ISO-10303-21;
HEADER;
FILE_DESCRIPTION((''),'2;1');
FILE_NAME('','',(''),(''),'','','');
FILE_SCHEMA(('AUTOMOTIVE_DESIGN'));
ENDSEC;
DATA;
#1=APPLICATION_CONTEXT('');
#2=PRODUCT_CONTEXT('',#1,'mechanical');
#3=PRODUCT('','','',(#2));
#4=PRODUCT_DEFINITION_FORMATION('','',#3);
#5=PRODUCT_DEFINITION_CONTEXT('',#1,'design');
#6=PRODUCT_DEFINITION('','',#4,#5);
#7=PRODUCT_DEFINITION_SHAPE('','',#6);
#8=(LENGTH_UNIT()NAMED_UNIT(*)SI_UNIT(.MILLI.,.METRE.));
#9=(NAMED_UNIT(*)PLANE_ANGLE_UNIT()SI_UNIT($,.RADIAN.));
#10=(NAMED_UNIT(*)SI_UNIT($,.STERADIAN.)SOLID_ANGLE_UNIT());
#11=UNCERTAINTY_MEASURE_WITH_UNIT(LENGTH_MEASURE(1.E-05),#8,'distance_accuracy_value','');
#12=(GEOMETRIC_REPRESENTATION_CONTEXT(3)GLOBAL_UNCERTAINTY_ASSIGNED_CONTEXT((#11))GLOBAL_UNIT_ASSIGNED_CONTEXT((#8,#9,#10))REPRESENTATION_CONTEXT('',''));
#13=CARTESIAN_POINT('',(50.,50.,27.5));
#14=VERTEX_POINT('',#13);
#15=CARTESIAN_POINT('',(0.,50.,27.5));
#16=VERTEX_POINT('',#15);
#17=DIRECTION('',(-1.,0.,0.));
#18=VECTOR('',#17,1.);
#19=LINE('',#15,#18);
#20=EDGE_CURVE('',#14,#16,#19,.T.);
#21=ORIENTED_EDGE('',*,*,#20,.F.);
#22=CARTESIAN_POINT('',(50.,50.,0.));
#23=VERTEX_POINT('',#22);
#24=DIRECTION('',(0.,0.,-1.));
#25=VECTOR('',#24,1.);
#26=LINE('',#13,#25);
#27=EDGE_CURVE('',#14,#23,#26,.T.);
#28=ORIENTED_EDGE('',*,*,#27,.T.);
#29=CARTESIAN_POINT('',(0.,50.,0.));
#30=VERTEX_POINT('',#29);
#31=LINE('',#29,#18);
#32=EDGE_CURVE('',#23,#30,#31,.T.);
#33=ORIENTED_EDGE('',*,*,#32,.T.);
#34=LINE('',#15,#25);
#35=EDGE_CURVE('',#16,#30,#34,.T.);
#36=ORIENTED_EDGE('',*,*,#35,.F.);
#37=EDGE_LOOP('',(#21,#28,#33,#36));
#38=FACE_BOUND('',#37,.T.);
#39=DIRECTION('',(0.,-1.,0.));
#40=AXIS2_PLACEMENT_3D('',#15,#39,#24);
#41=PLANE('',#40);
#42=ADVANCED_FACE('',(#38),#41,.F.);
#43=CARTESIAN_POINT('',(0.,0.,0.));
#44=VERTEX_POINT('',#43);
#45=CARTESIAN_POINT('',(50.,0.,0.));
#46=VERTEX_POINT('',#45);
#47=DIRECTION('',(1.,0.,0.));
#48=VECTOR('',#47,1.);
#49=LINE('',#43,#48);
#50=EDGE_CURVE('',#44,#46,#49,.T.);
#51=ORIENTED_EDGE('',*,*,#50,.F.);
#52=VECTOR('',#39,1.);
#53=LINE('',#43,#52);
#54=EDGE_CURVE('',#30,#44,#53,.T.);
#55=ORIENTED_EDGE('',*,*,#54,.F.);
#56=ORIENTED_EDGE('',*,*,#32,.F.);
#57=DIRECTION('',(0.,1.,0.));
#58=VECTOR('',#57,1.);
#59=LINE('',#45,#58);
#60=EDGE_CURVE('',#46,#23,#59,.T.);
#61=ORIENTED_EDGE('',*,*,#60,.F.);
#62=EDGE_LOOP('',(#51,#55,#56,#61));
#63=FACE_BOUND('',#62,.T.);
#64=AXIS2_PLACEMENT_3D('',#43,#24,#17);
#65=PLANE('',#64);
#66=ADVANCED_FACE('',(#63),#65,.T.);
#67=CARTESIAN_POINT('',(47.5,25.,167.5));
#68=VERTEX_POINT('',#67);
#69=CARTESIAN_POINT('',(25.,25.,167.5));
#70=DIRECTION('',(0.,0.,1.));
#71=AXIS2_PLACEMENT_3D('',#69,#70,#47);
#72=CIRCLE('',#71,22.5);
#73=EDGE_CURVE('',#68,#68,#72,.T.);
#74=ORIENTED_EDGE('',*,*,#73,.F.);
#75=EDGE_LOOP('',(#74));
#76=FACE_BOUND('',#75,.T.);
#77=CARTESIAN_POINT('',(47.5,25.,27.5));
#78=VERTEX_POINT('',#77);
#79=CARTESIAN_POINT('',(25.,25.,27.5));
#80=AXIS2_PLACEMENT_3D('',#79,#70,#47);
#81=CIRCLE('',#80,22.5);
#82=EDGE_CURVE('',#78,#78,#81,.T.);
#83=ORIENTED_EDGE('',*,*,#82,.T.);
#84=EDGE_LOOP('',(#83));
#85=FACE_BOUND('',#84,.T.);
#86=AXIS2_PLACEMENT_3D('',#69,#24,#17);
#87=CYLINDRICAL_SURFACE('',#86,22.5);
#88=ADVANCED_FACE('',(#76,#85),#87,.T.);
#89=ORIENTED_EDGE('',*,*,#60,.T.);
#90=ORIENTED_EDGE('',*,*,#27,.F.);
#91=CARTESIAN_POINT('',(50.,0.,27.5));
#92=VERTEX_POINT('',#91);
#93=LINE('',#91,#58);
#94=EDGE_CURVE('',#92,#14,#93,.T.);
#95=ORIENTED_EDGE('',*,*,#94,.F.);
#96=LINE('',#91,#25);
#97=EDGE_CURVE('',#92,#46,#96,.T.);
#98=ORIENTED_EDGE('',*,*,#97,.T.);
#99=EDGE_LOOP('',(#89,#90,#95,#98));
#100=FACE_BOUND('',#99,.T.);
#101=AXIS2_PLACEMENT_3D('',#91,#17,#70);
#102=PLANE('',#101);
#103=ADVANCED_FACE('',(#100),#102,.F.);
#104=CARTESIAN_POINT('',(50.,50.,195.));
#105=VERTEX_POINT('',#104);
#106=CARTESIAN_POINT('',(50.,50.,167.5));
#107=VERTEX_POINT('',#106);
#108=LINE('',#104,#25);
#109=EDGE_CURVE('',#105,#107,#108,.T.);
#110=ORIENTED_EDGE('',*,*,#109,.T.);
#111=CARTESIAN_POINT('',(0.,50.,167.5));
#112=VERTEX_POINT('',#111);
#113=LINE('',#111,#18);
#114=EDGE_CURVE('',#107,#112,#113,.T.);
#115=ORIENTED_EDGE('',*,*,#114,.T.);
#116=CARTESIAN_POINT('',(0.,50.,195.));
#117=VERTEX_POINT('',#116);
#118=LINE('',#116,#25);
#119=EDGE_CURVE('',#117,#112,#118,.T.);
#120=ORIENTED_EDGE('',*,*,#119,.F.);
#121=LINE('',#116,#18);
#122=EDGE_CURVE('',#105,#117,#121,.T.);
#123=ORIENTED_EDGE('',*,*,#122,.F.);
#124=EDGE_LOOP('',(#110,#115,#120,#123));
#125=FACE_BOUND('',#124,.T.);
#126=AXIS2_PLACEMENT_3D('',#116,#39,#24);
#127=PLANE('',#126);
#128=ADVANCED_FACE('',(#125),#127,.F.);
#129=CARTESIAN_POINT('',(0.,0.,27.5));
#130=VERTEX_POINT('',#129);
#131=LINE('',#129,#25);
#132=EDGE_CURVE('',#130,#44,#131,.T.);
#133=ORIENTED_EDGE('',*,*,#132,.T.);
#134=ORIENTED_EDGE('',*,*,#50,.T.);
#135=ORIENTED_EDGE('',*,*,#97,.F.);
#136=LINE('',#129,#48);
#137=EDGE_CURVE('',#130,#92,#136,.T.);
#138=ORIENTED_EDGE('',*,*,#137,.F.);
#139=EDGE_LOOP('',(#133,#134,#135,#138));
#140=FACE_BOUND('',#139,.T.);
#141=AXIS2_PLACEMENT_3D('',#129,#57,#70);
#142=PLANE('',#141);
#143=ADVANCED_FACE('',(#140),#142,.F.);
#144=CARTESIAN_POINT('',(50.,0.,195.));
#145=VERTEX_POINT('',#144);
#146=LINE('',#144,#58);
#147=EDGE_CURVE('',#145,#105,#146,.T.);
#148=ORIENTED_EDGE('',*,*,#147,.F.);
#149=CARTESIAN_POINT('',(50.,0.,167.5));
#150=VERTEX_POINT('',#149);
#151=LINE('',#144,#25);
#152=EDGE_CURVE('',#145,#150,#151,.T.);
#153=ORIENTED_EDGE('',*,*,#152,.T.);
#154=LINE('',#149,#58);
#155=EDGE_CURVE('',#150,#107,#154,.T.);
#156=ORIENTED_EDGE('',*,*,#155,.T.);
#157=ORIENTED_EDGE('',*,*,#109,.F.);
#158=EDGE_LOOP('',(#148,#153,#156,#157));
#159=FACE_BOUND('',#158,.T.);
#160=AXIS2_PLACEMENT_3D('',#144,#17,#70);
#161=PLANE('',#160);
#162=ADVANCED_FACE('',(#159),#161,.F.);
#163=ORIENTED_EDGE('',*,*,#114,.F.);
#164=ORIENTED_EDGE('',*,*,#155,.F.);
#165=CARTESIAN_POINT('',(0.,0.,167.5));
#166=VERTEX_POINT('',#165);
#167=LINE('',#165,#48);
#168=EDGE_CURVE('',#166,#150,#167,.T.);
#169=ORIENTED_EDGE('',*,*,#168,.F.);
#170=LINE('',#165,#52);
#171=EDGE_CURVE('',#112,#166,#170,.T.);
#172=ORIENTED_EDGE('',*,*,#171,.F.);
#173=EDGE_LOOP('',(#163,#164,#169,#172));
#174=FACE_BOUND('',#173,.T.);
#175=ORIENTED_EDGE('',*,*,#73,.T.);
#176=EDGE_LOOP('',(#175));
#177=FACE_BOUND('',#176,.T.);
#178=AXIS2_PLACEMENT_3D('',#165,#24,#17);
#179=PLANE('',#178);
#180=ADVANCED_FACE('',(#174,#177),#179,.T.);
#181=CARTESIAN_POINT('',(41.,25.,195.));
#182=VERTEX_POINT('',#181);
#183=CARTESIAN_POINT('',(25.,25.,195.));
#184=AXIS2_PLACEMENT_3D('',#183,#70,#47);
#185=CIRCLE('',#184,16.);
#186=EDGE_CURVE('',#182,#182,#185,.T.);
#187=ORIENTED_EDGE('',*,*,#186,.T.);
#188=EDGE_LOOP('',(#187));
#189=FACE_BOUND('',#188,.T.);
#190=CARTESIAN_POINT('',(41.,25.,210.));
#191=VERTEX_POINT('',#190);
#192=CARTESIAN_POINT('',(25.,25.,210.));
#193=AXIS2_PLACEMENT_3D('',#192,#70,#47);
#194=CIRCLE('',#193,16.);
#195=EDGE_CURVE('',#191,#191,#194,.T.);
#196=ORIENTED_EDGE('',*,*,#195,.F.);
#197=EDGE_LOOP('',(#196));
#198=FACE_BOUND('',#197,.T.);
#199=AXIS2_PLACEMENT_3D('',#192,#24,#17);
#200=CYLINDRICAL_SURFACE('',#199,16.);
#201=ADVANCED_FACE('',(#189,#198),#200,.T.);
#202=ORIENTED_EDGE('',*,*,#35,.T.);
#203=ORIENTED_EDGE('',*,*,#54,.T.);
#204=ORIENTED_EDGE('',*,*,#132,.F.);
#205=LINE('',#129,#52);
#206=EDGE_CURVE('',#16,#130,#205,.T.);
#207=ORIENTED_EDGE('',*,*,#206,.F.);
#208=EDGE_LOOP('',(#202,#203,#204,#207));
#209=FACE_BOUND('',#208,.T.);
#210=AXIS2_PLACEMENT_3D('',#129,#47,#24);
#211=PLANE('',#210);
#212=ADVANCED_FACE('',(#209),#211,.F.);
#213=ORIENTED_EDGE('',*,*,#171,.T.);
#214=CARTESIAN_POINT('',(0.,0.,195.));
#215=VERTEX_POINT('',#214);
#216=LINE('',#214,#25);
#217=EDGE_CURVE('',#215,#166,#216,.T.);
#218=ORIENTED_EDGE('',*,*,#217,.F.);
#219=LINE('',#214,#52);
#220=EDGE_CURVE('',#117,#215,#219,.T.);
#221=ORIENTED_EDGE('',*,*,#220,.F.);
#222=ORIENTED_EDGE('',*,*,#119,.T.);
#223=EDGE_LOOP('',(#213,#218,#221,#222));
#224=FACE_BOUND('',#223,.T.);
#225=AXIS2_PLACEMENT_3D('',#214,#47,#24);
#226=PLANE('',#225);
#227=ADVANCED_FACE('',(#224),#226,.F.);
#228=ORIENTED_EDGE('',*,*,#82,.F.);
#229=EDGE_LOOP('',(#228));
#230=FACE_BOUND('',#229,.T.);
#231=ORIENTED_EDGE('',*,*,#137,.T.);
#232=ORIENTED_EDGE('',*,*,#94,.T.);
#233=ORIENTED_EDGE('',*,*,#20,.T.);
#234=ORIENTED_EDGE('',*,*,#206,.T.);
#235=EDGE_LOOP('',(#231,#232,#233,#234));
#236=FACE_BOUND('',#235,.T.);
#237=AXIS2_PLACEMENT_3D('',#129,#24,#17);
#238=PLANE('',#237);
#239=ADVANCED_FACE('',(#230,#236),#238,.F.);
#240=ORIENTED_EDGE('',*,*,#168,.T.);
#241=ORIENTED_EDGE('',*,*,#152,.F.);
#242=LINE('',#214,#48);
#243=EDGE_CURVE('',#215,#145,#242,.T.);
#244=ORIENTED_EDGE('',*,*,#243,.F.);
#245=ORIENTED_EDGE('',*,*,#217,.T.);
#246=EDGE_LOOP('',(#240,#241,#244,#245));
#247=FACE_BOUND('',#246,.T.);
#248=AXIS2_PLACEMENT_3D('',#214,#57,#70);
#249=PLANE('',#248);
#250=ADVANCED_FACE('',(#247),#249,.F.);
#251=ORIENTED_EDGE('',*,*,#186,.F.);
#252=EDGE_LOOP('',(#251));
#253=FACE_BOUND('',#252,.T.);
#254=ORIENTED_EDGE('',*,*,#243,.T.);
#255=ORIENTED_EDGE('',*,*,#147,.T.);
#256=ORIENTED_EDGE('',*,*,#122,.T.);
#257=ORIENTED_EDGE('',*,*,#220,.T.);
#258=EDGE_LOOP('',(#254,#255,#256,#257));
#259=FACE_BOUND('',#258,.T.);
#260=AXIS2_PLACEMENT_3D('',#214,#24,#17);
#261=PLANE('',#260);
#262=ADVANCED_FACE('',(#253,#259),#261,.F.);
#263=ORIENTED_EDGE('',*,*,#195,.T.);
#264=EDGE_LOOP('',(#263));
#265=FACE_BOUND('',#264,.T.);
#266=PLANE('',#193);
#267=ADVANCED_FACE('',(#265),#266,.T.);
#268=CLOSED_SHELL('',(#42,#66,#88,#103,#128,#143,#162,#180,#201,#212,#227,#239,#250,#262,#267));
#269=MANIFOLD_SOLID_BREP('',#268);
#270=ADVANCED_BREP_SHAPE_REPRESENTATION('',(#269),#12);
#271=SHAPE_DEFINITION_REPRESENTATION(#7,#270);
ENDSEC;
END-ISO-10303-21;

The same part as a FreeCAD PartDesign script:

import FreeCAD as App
import Part
import Sketcher

V = App.Vector

doc = App.newDocument("Part")
body = doc.addObject("PartDesign::Body", "Body")

sketch1 = body.newObject("Sketcher::SketchObject", "Sketch")
sketch1.AttachmentSupport = (doc.getObject("XY_Plane"), [""])
sketch1.MapMode = "FlatFace"
sketch1.addGeometry([
    Part.LineSegment(V(0, 50, 0), V(0, 0, 0)),
    Part.LineSegment(V(0, 0, 0), V(50, 0, 0)),
    Part.LineSegment(V(50, 0, 0), V(50, 50, 0)),
    Part.LineSegment(V(50, 50, 0), V(0, 50, 0)),
], False)
sketch1.addConstraint([
    Sketcher.Constraint("Coincident", 0, 2, 1, 1),
    Sketcher.Constraint("Coincident", 1, 2, 2, 1),
    Sketcher.Constraint("Coincident", 2, 2, 3, 1),
    Sketcher.Constraint("Coincident", 3, 2, 0, 1),
    Sketcher.Constraint("Vertical", 0),
    Sketcher.Constraint("Horizontal", 1),
    Sketcher.Constraint("Vertical", 2),
    Sketcher.Constraint("Horizontal", 3),
    Sketcher.Constraint("Coincident", 0, 2, -1, 1),
    Sketcher.Constraint("Equal", 3, 0),
    Sketcher.Constraint("DistanceX", 1, 1, 1, 2, 50.0),
])
pad1 = body.newObject("PartDesign::Pad", "Pad")
pad1.Profile = sketch1
pad1.Length = 27.5

sketch2 = body.newObject("Sketcher::SketchObject", "Sketch001")
sketch2.AttachmentSupport = (doc.getObject("XY_Plane"), [""])
sketch2.MapMode = "FlatFace"
sketch2.AttachmentOffset = App.Placement(V(0, 0, 27.5), App.Rotation())
sketch2.addGeometry(Part.Circle(V(25, 25, 0), V(0, 0, 1), 22), False)
sketch2.addConstraint([
    Sketcher.Constraint("Diameter", 0, 45.0),
    Sketcher.Constraint("DistanceX", -1, 1, 0, 3, 25.0),
    Sketcher.Constraint("DistanceY", -1, 1, 0, 3, 25.0),
])
pad2 = body.newObject("PartDesign::Pad", "Pad001")
pad2.Profile = sketch2
pad2.Length = 140

sketch3 = body.newObject("Sketcher::SketchObject", "Sketch002")
sketch3.AttachmentSupport = (doc.getObject("XY_Plane"), [""])
sketch3.MapMode = "FlatFace"
sketch3.AttachmentOffset = App.Placement(V(0, 0, 167.5), App.Rotation())
sketch3.addGeometry([
    Part.LineSegment(V(0, 50, 0), V(0, 0, 0)),
    Part.LineSegment(V(0, 0, 0), V(50, 0, 0)),
    Part.LineSegment(V(50, 0, 0), V(50, 50, 0)),
    Part.LineSegment(V(50, 50, 0), V(0, 50, 0)),
], False)
sketch3.addConstraint([
    Sketcher.Constraint("Coincident", 0, 2, 1, 1),
    Sketcher.Constraint("Coincident", 1, 2, 2, 1),
    Sketcher.Constraint("Coincident", 2, 2, 3, 1),
    Sketcher.Constraint("Coincident", 3, 2, 0, 1),
    Sketcher.Constraint("Vertical", 0),
    Sketcher.Constraint("Horizontal", 1),
    Sketcher.Constraint("Vertical", 2),
    Sketcher.Constraint("Horizontal", 3),
    Sketcher.Constraint("Coincident", 0, 2, -1, 1),
    Sketcher.Constraint("Equal", 3, 0),
    Sketcher.Constraint("DistanceX", 1, 1, 1, 2, 50.0),
])
pad3 = body.newObject("PartDesign::Pad", "Pad002")
pad3.Profile = sketch3
pad3.Length = 27.5

sketch4 = body.newObject("Sketcher::SketchObject", "Sketch003")
sketch4.AttachmentSupport = (doc.getObject("XY_Plane"), [""])
sketch4.MapMode = "FlatFace"
sketch4.AttachmentOffset = App.Placement(V(0, 0, 195), App.Rotation())
sketch4.addGeometry(Part.Circle(V(25, 25, 0), V(0, 0, 1), 16), False)
sketch4.addConstraint([
    Sketcher.Constraint("Diameter", 0, 32.0),
    Sketcher.Constraint("DistanceX", -1, 1, 0, 3, 25.0),
    Sketcher.Constraint("DistanceY", -1, 1, 0, 3, 25.0),
])
pad4 = body.newObject("PartDesign::Pad", "Pad003")
pad4.Profile = sketch4
pad4.Length = 15

doc.recompute()
